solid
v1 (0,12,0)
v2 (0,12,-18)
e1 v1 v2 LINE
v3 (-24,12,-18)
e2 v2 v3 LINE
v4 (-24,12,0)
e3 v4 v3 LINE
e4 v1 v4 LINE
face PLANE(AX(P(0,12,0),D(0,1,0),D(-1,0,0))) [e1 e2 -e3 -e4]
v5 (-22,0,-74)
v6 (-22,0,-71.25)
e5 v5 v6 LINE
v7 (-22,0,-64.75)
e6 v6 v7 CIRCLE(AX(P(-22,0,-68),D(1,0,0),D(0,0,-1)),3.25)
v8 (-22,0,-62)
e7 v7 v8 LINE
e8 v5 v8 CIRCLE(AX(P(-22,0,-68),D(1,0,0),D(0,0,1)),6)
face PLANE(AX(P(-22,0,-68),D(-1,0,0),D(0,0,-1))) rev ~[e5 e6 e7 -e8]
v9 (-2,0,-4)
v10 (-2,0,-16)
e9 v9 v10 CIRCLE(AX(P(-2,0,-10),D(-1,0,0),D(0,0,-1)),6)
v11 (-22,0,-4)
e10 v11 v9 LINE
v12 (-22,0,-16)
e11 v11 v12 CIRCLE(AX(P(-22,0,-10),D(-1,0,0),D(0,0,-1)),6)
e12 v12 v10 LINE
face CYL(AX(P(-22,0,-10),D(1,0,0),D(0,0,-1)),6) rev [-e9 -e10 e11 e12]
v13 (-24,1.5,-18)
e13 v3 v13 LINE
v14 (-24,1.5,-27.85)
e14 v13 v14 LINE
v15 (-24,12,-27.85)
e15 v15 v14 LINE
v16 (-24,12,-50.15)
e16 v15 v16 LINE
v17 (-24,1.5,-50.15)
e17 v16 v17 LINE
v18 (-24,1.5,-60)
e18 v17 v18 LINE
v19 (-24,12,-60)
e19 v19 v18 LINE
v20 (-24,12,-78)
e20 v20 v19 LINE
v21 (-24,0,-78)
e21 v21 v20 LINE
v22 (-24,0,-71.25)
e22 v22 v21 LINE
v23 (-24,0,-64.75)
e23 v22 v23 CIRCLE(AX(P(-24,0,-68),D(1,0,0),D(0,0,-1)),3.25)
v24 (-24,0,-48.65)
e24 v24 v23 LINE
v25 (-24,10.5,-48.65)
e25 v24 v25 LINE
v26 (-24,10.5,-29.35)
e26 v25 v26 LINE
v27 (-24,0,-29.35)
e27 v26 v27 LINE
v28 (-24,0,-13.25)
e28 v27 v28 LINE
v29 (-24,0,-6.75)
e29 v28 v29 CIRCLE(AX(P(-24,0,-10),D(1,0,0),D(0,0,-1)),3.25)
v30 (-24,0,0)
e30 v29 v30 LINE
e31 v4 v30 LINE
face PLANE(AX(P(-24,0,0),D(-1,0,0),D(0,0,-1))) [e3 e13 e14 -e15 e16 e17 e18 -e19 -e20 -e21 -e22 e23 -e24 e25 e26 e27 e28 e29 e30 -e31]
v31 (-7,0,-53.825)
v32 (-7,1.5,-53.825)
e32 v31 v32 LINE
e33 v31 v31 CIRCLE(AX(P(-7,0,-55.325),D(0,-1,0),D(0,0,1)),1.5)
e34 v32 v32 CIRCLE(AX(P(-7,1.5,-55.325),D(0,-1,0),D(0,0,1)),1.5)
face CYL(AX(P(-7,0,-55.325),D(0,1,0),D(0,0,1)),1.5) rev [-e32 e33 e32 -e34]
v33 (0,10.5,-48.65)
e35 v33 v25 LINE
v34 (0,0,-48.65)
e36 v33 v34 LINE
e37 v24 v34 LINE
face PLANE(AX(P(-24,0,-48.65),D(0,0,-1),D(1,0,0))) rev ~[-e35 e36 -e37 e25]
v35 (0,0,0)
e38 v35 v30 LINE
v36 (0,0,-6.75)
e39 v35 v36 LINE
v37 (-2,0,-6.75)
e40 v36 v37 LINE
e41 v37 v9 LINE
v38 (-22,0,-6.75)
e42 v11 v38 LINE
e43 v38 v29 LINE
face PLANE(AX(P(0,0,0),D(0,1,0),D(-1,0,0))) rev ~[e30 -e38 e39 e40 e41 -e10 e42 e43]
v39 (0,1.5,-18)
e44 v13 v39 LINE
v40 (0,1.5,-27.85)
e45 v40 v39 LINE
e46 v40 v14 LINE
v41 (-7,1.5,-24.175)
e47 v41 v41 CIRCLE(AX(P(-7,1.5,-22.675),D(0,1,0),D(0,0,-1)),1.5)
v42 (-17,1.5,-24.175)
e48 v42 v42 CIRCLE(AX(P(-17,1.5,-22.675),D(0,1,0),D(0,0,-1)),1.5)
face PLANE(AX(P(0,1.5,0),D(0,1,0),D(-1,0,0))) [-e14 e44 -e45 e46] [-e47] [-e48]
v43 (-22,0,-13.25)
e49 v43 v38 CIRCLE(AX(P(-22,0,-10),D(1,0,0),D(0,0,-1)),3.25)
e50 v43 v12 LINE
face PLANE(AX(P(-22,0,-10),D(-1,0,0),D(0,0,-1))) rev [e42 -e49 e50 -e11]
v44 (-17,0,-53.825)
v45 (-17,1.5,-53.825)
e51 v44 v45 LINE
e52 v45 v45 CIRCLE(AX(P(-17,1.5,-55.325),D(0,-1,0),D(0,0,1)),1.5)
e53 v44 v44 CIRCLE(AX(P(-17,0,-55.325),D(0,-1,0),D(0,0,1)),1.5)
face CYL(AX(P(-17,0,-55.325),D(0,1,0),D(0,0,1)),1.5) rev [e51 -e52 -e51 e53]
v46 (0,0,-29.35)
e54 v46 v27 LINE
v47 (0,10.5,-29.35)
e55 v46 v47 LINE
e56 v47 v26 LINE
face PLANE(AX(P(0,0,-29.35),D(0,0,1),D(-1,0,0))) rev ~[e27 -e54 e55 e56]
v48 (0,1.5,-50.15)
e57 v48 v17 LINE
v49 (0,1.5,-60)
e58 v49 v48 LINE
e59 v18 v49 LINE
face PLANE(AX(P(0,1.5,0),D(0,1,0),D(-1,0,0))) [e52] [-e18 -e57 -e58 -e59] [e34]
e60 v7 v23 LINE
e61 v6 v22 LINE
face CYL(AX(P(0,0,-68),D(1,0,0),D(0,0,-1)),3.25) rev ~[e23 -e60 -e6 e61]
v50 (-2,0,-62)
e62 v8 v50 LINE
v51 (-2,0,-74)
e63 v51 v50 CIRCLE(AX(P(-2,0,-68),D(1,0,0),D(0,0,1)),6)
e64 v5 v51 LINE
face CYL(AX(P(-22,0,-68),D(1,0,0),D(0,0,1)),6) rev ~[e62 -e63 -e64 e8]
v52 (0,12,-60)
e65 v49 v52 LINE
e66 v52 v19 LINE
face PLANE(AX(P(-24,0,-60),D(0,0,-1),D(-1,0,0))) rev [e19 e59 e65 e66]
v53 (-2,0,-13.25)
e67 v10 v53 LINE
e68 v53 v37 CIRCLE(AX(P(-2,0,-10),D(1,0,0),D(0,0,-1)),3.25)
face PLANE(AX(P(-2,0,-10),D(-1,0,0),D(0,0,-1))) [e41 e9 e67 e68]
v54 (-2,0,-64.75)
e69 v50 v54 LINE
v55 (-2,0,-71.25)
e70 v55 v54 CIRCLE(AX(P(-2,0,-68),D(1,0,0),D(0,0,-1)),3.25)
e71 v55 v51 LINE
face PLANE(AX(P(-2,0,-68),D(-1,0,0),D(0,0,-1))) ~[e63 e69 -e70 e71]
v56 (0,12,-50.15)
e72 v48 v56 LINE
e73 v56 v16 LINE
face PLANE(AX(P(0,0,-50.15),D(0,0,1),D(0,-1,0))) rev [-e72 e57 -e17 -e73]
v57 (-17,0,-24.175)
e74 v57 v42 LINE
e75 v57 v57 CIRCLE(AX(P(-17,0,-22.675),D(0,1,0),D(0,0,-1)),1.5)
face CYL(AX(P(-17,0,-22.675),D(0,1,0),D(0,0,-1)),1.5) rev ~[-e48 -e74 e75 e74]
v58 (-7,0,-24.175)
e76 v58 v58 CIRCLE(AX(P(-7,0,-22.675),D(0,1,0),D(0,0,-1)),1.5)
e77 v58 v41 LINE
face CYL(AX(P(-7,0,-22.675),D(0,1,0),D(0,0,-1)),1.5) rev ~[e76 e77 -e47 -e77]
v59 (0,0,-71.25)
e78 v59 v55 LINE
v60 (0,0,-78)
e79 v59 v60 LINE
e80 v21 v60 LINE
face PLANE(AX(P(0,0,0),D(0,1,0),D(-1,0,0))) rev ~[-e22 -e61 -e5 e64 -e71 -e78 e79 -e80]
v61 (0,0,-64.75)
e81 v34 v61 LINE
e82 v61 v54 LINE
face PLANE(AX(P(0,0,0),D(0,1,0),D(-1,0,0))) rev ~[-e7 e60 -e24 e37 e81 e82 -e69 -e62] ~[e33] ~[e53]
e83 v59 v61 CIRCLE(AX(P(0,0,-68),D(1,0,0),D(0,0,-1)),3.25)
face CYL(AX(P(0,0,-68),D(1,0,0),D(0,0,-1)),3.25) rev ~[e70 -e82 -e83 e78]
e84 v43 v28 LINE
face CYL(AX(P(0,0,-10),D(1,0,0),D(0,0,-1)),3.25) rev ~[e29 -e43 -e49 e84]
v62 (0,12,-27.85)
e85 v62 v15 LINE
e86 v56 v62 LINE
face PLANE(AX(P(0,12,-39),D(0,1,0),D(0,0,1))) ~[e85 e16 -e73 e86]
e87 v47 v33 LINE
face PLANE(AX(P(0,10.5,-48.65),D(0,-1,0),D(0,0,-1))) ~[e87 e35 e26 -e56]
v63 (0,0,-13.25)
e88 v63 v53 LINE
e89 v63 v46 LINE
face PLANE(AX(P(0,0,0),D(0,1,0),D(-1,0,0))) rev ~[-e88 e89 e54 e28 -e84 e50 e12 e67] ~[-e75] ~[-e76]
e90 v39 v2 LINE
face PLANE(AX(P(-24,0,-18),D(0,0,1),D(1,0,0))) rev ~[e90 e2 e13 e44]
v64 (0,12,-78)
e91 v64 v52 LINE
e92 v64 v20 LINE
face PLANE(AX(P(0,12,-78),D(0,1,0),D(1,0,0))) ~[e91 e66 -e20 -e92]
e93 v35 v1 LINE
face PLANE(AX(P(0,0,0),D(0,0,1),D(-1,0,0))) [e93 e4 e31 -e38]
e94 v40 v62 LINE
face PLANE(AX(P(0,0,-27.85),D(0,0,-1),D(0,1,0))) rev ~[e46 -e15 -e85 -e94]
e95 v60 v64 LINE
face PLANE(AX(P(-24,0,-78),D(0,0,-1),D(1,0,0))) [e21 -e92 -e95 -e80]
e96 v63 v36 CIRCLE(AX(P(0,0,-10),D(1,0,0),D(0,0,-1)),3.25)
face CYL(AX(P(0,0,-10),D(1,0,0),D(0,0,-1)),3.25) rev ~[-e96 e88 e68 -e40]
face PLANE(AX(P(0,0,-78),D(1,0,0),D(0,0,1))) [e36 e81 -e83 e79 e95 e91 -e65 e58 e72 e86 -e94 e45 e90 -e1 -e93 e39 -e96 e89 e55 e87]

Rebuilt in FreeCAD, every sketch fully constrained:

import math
import FreeCAD as App
import Part
import Sketcher

doc = App.newDocument("Part")
body = doc.addObject("PartDesign::Body", "Body")
body.AllowCompound = True

# Sketch on XZ plane
sketch1 = doc.addObject("Sketcher::SketchObject", "Sketch")
body.addObject(sketch1)
sketch1.AttachmentSupport = (doc.XZ_Plane, [""])
sketch1.MapMode = "FlatFace"
sketch1.addGeometry([
    Part.LineSegment(App.Vector(-24, 0, 0), App.Vector(0, 0, 0)),
    Part.LineSegment(App.Vector(0, 0, 0), App.Vector(0, -78, 0)),
    Part.LineSegment(App.Vector(0, -78, 0), App.Vector(-24, -78, 0)),
    Part.LineSegment(App.Vector(-24, -78, 0), App.Vector(-24, 0, 0)),
], False)
sketch1.addConstraint([
    Sketcher.Constraint("Coincident", 0, 2, 1, 1),
    Sketcher.Constraint("Coincident", 1, 2, 2, 1),
    Sketcher.Constraint("Coincident", 2, 2, 3, 1),
    Sketcher.Constraint("Coincident", 3, 2, 0, 1),
    Sketcher.Constraint("Horizontal", 0),
    Sketcher.Constraint("Vertical", 1),
    Sketcher.Constraint("Horizontal", 2),
    Sketcher.Constraint("Vertical", 3),
    Sketcher.Constraint("Coincident", 0, 2, -1, 1),
    Sketcher.Constraint("DistanceX", 0, 1, 0, 2, 24.0),
    Sketcher.Constraint("DistanceY", 1, 2, 1, 1, 78.0),
])
pad1 = doc.addObject("PartDesign::Pad", "Pad")
body.addObject(pad1)
pad1.Profile = sketch1
pad1.Length = 1.5
pad1.Reversed = True

# Sketch on XY plane
sketch2 = doc.addObject("Sketcher::SketchObject", "Sketch001")
body.addObject(sketch2)
sketch2.AttachmentSupport = (doc.XY_Plane, [""])
sketch2.MapMode = "FlatFace"
sketch2.addGeometry([
    Part.LineSegment(App.Vector(-24, 0, 0), App.Vector(0, 0, 0)),
    Part.LineSegment(App.Vector(0, 0, 0), App.Vector(0, 12, 0)),
    Part.LineSegment(App.Vector(0, 12, 0), App.Vector(-24, 12, 0)),
    Part.LineSegment(App.Vector(-24, 12, 0), App.Vector(-24, 0, 0)),
], False)
sketch2.addConstraint([
    Sketcher.Constraint("Coincident", 0, 2, 1, 1),
    Sketcher.Constraint("Coincident", 1, 2, 2, 1),
    Sketcher.Constraint("Coincident", 2, 2, 3, 1),
    Sketcher.Constraint("Coincident", 3, 2, 0, 1),
    Sketcher.Constraint("Horizontal", 0),
    Sketcher.Constraint("Vertical", 1),
    Sketcher.Constraint("Horizontal", 2),
    Sketcher.Constraint("Vertical", 3),
    Sketcher.Constraint("Coincident", 0, 2, -1, 1),
    Sketcher.Constraint("DistanceY", 1, 1, 1, 2, 12.0),
    Sketcher.Constraint("DistanceX", 0, 1, 0, 2, 24.0),
])
pad2 = doc.addObject("PartDesign::Pad", "Pad001")
body.addObject(pad2)
pad2.Profile = sketch2
pad2.Length = 18
pad2.Reversed = True

# Sketch on XZ plane
sketch3 = doc.addObject("Sketcher::SketchObject", "Sketch002")
body.addObject(sketch3)
sketch3.AttachmentSupport = (doc.XZ_Plane, [""])
sketch3.MapMode = "FlatFace"
sketch3.addGeometry([
    Part.LineSegment(App.Vector(-2, -16, 0), App.Vector(-2, -10, 0)),
    Part.LineSegment(App.Vector(-2, -10, 0), App.Vector(-22, -10, 0)),
    Part.LineSegment(App.Vector(-22, -10, 0), App.Vector(-22, -16, 0)),
    Part.LineSegment(App.Vector(-22, -16, 0), App.Vector(-2, -16, 0)),
], False)
sketch3.addGeometry(Part.LineSegment(App.Vector(-2, -10, 0), App.Vector(-22, -10, 0)), True)  # axis
sketch3.addConstraint([
    Sketcher.Constraint("Coincident", 0, 2, 1, 1),
    Sketcher.Constraint("Coincident", 1, 2, 2, 1),
    Sketcher.Constraint("Coincident", 2, 2, 3, 1),
    Sketcher.Constraint("Coincident", 3, 2, 0, 1),
    Sketcher.Constraint("Vertical", 0),
    Sketcher.Constraint("Horizontal", 1),
    Sketcher.Constraint("Vertical", 2),
    Sketcher.Constraint("Horizontal", 3),
    Sketcher.Constraint("Horizontal", 4),
    Sketcher.Constraint("Coincident", 4, 1, 0, 2),
    Sketcher.Constraint("Vertical", 2, 2, 4, 2),
    Sketcher.Constraint("DistanceX", 1, 2, 1, 1, 20.0),
    Sketcher.Constraint("DistanceY", 0, 1, 0, 2, 6.0),
    Sketcher.Constraint("DistanceY", 2, 2, -1, 1, 16.0),
    Sketcher.Constraint("DistanceX", 0, 2, -1, 1, 2.0),
])
groove = doc.addObject("PartDesign::Groove", "Groove")
body.addObject(groove)
groove.Profile = sketch3
groove.ReferenceAxis = (sketch3, ["Axis0"])
groove.Angle = 360

# Sketch on XZ plane
sketch4 = doc.addObject("Sketcher::SketchObject", "Sketch003")
body.addObject(sketch4)
sketch4.AttachmentSupport = (doc.XZ_Plane, [""])
sketch4.MapMode = "FlatFace"
sketch4.addGeometry([
    Part.LineSegment(App.Vector(-24, -29.35, 0), App.Vector(-24, -48.65, 0)),
    Part.LineSegment(App.Vector(-24, -48.65, 0), App.Vector(0, -48.65, 0)),
    Part.LineSegment(App.Vector(0, -48.65, 0), App.Vector(0, -29.35, 0)),
    Part.LineSegment(App.Vector(0, -29.35, 0), App.Vector(-24, -29.35, 0)),
], False)
sketch4.addConstraint([
    Sketcher.Constraint("Coincident", 0, 2, 1, 1),
    Sketcher.Constraint("Coincident", 1, 2, 2, 1),
    Sketcher.Constraint("Coincident", 2, 2, 3, 1),
    Sketcher.Constraint("Coincident", 3, 2, 0, 1),
    Sketcher.Constraint("Vertical", 0),
    Sketcher.Constraint("Horizontal", 1),
    Sketcher.Constraint("Vertical", 2),
    Sketcher.Constraint("Horizontal", 3),
    Sketcher.Constraint("PointOnObject", 1, 2, -2),
    Sketcher.Constraint("DistanceY", 0, 2, 0, 1, 19.3),
    Sketcher.Constraint("DistanceX", 1, 1, 1, 2, 24.0),
    Sketcher.Constraint("DistanceY", 0, 2, -1, 1, 48.65),
])
pocket1 = doc.addObject("PartDesign::Pocket", "Pocket")
body.addObject(pocket1)
pocket1.Profile = sketch4
pocket1.Length = 1.5

# Sketch on YZ plane
sketch5 = doc.addObject("Sketcher::SketchObject", "Sketch004")
body.addObject(sketch5)
sketch5.AttachmentSupport = (doc.YZ_Plane, [""])
sketch5.MapMode = "FlatFace"
sketch5.addGeometry([
    Part.LineSegment(App.Vector(0, -27.85, 0), App.Vector(0, -29.35, 0)),  # 0
    Part.LineSegment(App.Vector(0, -29.35, 0), App.Vector(10.5, -29.35, 0)),  # 1
    Part.LineSegment(App.Vector(10.5, -29.35, 0), App.Vector(10.5, -39, 0)),  # 2
    Part.LineSegment(App.Vector(10.5, -39, 0), App.Vector(12, -39, 0)),  # 3
    Part.LineSegment(App.Vector(12, -39, 0), App.Vector(12, -27.85, 0)),  # 4
    Part.LineSegment(App.Vector(12, -27.85, 0), App.Vector(0, -27.85, 0)),  # 5
], False)
sketch5.addConstraint([
    Sketcher.Constraint("Coincident", 0, 2, 1, 1),
    Sketcher.Constraint("Coincident", 1, 2, 2, 1),
    Sketcher.Constraint("Coincident", 2, 2, 3, 1),
    Sketcher.Constraint("Coincident", 3, 2, 4, 1),
    Sketcher.Constraint("Coincident", 4, 2, 5, 1),
    Sketcher.Constraint("Coincident", 5, 2, 0, 1),
    Sketcher.Constraint("Vertical", 0),
    Sketcher.Constraint("Horizontal", 1),
    Sketcher.Constraint("Vertical", 2),
    Sketcher.Constraint("Horizontal", 3),
    Sketcher.Constraint("Vertical", 4),
    Sketcher.Constraint("Horizontal", 5),
    Sketcher.Constraint("PointOnObject", 0, 2, -2),
    Sketcher.Constraint("Equal", 3, 0),
    Sketcher.Constraint("DistanceX", 1, 1, 1, 2, 10.5),
    Sketcher.Constraint("DistanceX", 3, 1, 3, 2, 1.5),
    Sketcher.Constraint("DistanceY", 4, 1, 4, 2, 11.15),
    Sketcher.Constraint("DistanceY", 2, 2, -1, 1, 39.0),
])
pad3 = doc.addObject("PartDesign::Pad", "Pad002")
body.addObject(pad3)
pad3.Profile = sketch5
pad3.Length = 24
pad3.Reversed = True

# Sketch on XZ plane
sketch6 = doc.addObject("Sketcher::SketchObject", "Sketch005")
body.addObject(sketch6)
sketch6.AttachmentSupport = (doc.XZ_Plane, [""])
sketch6.MapMode = "FlatFace"
sketch6.addGeometry([
    Part.Circle(App.Vector(-7, -22.675, 0), App.Vector(0, 0, 1), 1.5),
    Part.Circle(App.Vector(-17, -22.675, 0), App.Vector(0, 0, 1), 1.5),
], False)
sketch6.addConstraint([
    Sketcher.Constraint("Equal", 0, 1),
    Sketcher.Constraint("Horizontal", 0, 3, 1, 3),
    Sketcher.Constraint("Diameter", 0, 3.0),
    Sketcher.Constraint("DistanceX", 0, 3, -1, 1, 7.0),
    Sketcher.Constraint("DistanceX", 1, 3, -1, 1, 17.0),
    Sketcher.Constraint("DistanceY", 0, 3, -1, 1, 22.675),
])
doc.recompute()
hole = doc.addObject("PartDesign::Hole", "Hole")
body.addObject(hole)
hole.Profile = sketch6
hole.ThreadType = "None"
hole.Diameter = 3
hole.DepthType = "Dimension"
hole.Depth = 1.5
hole.DrillPoint = "Flat"
doc.recompute()

datumplane = doc.addObject("PartDesign::Plane", "DatumPlane")
body.addObject(datumplane)
datumplane.AttachmentSupport = (doc.XY_Plane, [""])
datumplane.MapMode = "FlatFace"
datumplane.AttachmentOffset = App.Placement(App.Vector(0, 0, -39), App.Rotation())
mirrored = doc.addObject("PartDesign::Mirrored", "Mirrored")
body.addObject(mirrored)
mirrored.Originals = [pad2, groove, pad3, hole]
mirrored.MirrorPlane = (datumplane, [""])
body.Tip = mirrored

# Sketch on YZ plane
sketch7 = doc.addObject("Sketcher::SketchObject", "Sketch006")
body.addObject(sketch7)
sketch7.AttachmentSupport = (doc.YZ_Plane, [""])
sketch7.MapMode = "FlatFace"
sketch7.addGeometry([
    Part.LineSegment(App.Vector(0, -6.75, 0), App.Vector(0, -13.25, 0)),
    Part.ArcOfCircle(Part.Circle(App.Vector(0, -10, 0), App.Vector(0, 0, 1), 3.25), math.radians(-90), math.radians(90)),
    Part.ArcOfCircle(Part.Circle(App.Vector(0, -68, 0), App.Vector(0, 0, 1), 3.25), math.radians(-90), math.radians(90)),
    Part.LineSegment(App.Vector(0, -64.75, 0), App.Vector(0, -71.25, 0)),
], False)
sketch7.addConstraint([
    Sketcher.Constraint("Coincident", 0, 1, 1, 2),
    Sketcher.Constraint("Coincident", 1, 1, 0, 2),
    Sketcher.Constraint("Coincident", 2, 1, 3, 2),
    Sketcher.Constraint("Coincident", 3, 1, 2, 2),
    Sketcher.Constraint("Vertical", 0),
    Sketcher.Constraint("Vertical", 3),
    Sketcher.Constraint("Equal", 1, 2),
    Sketcher.Constraint("PointOnObject", 1, 3, -2),
    Sketcher.Constraint("PointOnObject", 2, 3, -2),
    Sketcher.Constraint("PointOnObject", 0, 1, -2),
    Sketcher.Constraint("PointOnObject", 2, 1, -2),
    Sketcher.Constraint("Radius", 1, 3.25),
    Sketcher.Constraint("DistanceY", 1, 3, -1, 1, 10.0),
    Sketcher.Constraint("DistanceY", 2, 3, -1, 1, 68.0),
])
pocket2 = doc.addObject("PartDesign::Pocket", "Pocket001")
body.addObject(pocket2)
pocket2.Profile = sketch7
pocket2.Length = 24

doc.recompute()
